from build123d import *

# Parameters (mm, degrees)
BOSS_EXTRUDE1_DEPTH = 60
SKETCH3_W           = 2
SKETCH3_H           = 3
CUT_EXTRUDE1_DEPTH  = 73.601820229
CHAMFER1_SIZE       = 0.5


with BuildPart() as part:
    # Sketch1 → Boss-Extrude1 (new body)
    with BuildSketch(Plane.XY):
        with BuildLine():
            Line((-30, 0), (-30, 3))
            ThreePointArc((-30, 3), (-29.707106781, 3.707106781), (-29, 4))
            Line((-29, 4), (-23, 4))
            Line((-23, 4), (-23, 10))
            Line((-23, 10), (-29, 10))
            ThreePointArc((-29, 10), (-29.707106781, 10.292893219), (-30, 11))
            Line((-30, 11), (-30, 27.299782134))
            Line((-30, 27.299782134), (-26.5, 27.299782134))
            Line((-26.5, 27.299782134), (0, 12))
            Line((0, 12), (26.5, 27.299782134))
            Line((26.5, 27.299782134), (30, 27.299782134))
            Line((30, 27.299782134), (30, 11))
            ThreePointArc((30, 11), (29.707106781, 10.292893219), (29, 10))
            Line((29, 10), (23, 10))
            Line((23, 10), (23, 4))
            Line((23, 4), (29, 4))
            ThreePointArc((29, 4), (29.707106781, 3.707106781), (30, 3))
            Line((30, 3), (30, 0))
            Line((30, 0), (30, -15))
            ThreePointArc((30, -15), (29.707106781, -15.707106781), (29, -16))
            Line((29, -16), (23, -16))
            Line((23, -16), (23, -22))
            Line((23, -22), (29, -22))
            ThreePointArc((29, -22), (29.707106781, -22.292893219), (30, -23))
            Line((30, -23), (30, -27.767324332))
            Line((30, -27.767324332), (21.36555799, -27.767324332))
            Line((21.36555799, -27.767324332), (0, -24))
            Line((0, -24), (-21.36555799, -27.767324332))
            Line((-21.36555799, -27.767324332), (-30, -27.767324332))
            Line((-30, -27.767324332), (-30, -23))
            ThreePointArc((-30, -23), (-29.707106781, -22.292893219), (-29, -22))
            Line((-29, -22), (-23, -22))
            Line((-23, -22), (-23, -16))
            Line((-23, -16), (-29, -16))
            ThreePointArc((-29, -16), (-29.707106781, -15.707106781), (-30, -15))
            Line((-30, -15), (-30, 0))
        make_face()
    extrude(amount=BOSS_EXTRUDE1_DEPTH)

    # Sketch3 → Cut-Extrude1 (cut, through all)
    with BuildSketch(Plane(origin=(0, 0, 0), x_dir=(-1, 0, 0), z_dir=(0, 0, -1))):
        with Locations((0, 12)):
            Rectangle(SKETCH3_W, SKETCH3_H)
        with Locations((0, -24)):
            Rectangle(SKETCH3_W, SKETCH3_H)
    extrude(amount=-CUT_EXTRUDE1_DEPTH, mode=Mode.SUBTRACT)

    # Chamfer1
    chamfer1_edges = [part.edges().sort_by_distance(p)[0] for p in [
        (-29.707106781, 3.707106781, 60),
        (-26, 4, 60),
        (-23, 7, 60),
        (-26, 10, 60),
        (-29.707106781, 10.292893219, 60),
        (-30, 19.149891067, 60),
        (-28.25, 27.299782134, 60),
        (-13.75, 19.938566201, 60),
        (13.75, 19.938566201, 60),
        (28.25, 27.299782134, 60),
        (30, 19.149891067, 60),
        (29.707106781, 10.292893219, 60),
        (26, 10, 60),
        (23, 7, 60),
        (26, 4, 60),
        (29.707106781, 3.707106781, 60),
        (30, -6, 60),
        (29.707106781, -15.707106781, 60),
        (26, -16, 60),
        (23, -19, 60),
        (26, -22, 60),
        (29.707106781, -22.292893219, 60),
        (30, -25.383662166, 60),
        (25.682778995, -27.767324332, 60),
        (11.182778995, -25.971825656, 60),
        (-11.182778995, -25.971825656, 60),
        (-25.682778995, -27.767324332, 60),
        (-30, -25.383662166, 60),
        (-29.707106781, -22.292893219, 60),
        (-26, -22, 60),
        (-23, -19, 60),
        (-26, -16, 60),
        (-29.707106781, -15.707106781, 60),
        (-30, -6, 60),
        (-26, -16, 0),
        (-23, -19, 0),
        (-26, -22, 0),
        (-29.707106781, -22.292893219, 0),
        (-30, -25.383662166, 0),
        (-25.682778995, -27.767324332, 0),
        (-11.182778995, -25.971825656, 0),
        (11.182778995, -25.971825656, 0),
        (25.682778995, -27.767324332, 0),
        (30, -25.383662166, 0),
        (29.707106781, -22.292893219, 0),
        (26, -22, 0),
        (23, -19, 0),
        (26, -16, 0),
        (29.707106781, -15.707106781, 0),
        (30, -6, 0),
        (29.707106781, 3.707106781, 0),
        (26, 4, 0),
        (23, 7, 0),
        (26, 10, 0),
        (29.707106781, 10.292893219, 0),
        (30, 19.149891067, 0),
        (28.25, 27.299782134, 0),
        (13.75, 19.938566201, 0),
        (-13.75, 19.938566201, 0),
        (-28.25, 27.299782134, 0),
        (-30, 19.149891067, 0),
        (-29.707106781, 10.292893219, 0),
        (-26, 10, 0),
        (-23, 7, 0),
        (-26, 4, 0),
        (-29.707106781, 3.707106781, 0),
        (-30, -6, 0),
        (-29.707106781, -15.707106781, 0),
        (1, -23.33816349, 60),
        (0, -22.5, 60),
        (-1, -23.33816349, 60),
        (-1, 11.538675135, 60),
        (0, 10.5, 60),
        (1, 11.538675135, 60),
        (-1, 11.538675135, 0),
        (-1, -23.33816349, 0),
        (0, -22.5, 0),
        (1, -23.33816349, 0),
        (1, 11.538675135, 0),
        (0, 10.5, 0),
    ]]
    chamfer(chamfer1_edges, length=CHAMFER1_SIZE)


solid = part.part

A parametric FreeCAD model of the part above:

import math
import FreeCAD as App
import Part
import Sketcher
from FreeCAD import Vector
Q = App.Units.Quantity


def edges_at(feature, points):
    """Names of the edges that pass closest to the given points."""
    edges = feature.Shape.Edges
    near = lambda p: min(range(len(edges)), key=lambda i: edges[i].distToShape(Part.Vertex(*p))[0])
    return sorted({f"Edge{near(p) + 1}" for p in points})


def add_polygon(sketch, points):
    """Adds a closed chain of lines whose ends are joined by coincident constraints."""
    first, n = sketch.GeometryCount, len(points)
    for a, b in zip(points, points[1:] + points[:1]):
        sketch.addGeometry(Part.LineSegment(App.Vector(*a, 0), App.Vector(*b, 0)), False)
    for i in range(n):
        sketch.addConstraint(Sketcher.Constraint("Coincident", first + i, 2, first + (i + 1) % n, 1))

doc = App.newDocument("Part")
body = doc.addObject("PartDesign::Body", "Body")

sketch1 = body.newObject("Sketcher::SketchObject", "Sketch")
sketch1.AttachmentSupport = (doc.getObject("XY_Plane"), [""])
sketch1.MapMode = "FlatFace"
sketch1.addGeometry([
    Part.ArcOfCircle(Part.Circle(Vector(-29, 3, 0), Vector(0, 0, 1), 1), math.radians(90), math.radians(180)),
    Part.LineSegment(Vector(-30, 3, 0), Vector(-30, -15, 0)),
    Part.ArcOfCircle(Part.Circle(Vector(-29, -15, 0), Vector(0, 0, 1), 1), math.radians(-180), math.radians(-90)),
    Part.LineSegment(Vector(-29, -16, 0), Vector(-23, -16, 0)),
    Part.LineSegment(Vector(-23, -16, 0), Vector(-23, -22, 0)),
    Part.LineSegment(Vector(-23, -22, 0), Vector(-29, -22, 0)),
    Part.ArcOfCircle(Part.Circle(Vector(-29, -23, 0), Vector(0, 0, 1), 1), math.radians(90), math.radians(180)),
    Part.LineSegment(Vector(-30, -23, 0), Vector(-30, -27.8, 0)),
    Part.LineSegment(Vector(-30, -27.8, 0), Vector(-21.4, -27.8, 0)),
    Part.LineSegment(Vector(-21.4, -27.8, 0), Vector(0, -24, 0)),
    Part.LineSegment(Vector(0, -24, 0), Vector(21.4, -27.8, 0)),
    Part.LineSegment(Vector(21.4, -27.8, 0), Vector(30, -27.8, 0)),
    Part.LineSegment(Vector(30, -27.8, 0), Vector(30, -23, 0)),
    Part.ArcOfCircle(Part.Circle(Vector(29, -23, 0), Vector(0, 0, 1), 1), math.radians(0), math.radians(90)),
    Part.LineSegment(Vector(29, -22, 0), Vector(23, -22, 0)),
    Part.LineSegment(Vector(23, -22, 0), Vector(23, -16, 0)),
    Part.LineSegment(Vector(23, -16, 0), Vector(29, -16, 0)),
    Part.ArcOfCircle(Part.Circle(Vector(29, -15, 0), Vector(0, 0, 1), 1), math.radians(-90), math.radians(0)),
    Part.LineSegment(Vector(30, -15, 0), Vector(30, 3, 0)),
    Part.ArcOfCircle(Part.Circle(Vector(29, 3, 0), Vector(0, 0, 1), 1), math.radians(0), math.radians(90)),
    Part.LineSegment(Vector(29, 4, 0), Vector(23, 4, 0)),
    Part.LineSegment(Vector(23, 4, 0), Vector(23, 10, 0)),
    Part.LineSegment(Vector(23, 10, 0), Vector(29, 10, 0)),
    Part.ArcOfCircle(Part.Circle(Vector(29, 11, 0), Vector(0, 0, 1), 1), math.radians(-90), math.radians(0)),
    Part.LineSegment(Vector(30, 11, 0), Vector(30, 27.3, 0)),
    Part.LineSegment(Vector(30, 27.3, 0), Vector(26.5, 27.3, 0)),
    Part.LineSegment(Vector(26.5, 27.3, 0), Vector(0, 12, 0)),
    Part.LineSegment(Vector(0, 12, 0), Vector(-26.5, 27.3, 0)),
    Part.LineSegment(Vector(-26.5, 27.3, 0), Vector(-30, 27.3, 0)),
    Part.LineSegment(Vector(-30, 27.3, 0), Vector(-30, 11, 0)),
    Part.ArcOfCircle(Part.Circle(Vector(-29, 11, 0), Vector(0, 0, 1), 1), math.radians(-180), math.radians(-90)),
    Part.LineSegment(Vector(-29, 10, 0), Vector(-23, 10, 0)),
    Part.LineSegment(Vector(-23, 10, 0), Vector(-23, 4, 0)),
    Part.LineSegment(Vector(-23, 4, 0), Vector(-29, 4, 0)),
], False)
sketch1.addConstraint([
    Sketcher.Constraint("Tangent", 0, 2, 1, 1),
    Sketcher.Constraint("Tangent", 1, 2, 2, 1),
    Sketcher.Constraint("Tangent", 2, 2, 3, 1),
    Sketcher.Constraint("Coincident", 3, 2, 4, 1),
    Sketcher.Constraint("Coincident", 4, 2, 5, 1),
    Sketcher.Constraint("Tangent", 5, 2, 6, 1),
    Sketcher.Constraint("Tangent", 6, 2, 7, 1),
    Sketcher.Constraint("Coincident", 7, 2, 8, 1),
    Sketcher.Constraint("Coincident", 8, 2, 9, 1),
    Sketcher.Constraint("Coincident", 9, 2, 10, 1),
    Sketcher.Constraint("Coincident", 10, 2, 11, 1),
    Sketcher.Constraint("Coincident", 11, 2, 12, 1),
    Sketcher.Constraint("Tangent", 12, 2, 13, 1),
    Sketcher.Constraint("Tangent", 13, 2, 14, 1),
    Sketcher.Constraint("Coincident", 14, 2, 15, 1),
    Sketcher.Constraint("Coincident", 15, 2, 16, 1),
    Sketcher.Constraint("Tangent", 16, 2, 17, 1),
    Sketcher.Constraint("Tangent", 17, 2, 18, 1),
    Sketcher.Constraint("Tangent", 18, 2, 19, 1),
    Sketcher.Constraint("Tangent", 19, 2, 20, 1),
    Sketcher.Constraint("Coincident", 20, 2, 21, 1),
    Sketcher.Constraint("Coincident", 21, 2, 22, 1),
    Sketcher.Constraint("Tangent", 22, 2, 23, 1),
    Sketcher.Constraint("Tangent", 23, 2, 24, 1),
    Sketcher.Constraint("Coincident", 24, 2, 25, 1),
    Sketcher.Constraint("Coincident", 25, 2, 26, 1),
    Sketcher.Constraint("Coincident", 26, 2, 27, 1),
    Sketcher.Constraint("Coincident", 27, 2, 28, 1),
    Sketcher.Constraint("Coincident", 28, 2, 29, 1),
    Sketcher.Constraint("Tangent", 29, 2, 30, 1),
    Sketcher.Constraint("Tangent", 30, 2, 31, 1),
    Sketcher.Constraint("Coincident", 31, 2, 32, 1),
    Sketcher.Constraint("Coincident", 32, 2, 33, 1),
    Sketcher.Constraint("Tangent", 33, 2, 0, 1),
    Sketcher.Constraint("Vertical", 1),
    Sketcher.Constraint("Horizontal", 3),
    Sketcher.Constraint("Vertical", 4),
    Sketcher.Constraint("Horizontal", 5),
    Sketcher.Constraint("Vertical", 7),
    Sketcher.Constraint("Horizontal", 8),
    Sketcher.Constraint("Horizontal", 11),
    Sketcher.Constraint("Vertical", 12),
    Sketcher.Constraint("Horizontal", 14),
    Sketcher.Constraint("Vertical", 15),
    Sketcher.Constraint("Horizontal", 16),
    Sketcher.Constraint("Vertical", 18),
    Sketcher.Constraint("Horizontal", 20),
    Sketcher.Constraint("Vertical", 21),
    Sketcher.Constraint("Horizontal", 22),
    Sketcher.Constraint("Vertical", 24),
    Sketcher.Constraint("Horizontal", 25),
    Sketcher.Constraint("Horizontal", 28),
    Sketcher.Constraint("Vertical", 29),
    Sketcher.Constraint("Horizontal", 31),
    Sketcher.Constraint("Vertical", 32),
    Sketcher.Constraint("Horizontal", 33),
    Sketcher.Constraint("Equal", 0, 2),
    Sketcher.Constraint("Equal", 2, 6),
    Sketcher.Constraint("Equal", 6, 13),
    Sketcher.Constraint("Equal", 13, 17),
    Sketcher.Constraint("Equal", 17, 19),
    Sketcher.Constraint("Equal", 19, 23),
    Sketcher.Constraint("Equal", 23, 30),
    Sketcher.Constraint("Symmetric", 6, 3, 13, 3, -2),
    Sketcher.Constraint("Symmetric", 2, 3, 17, 3, -2),
    Sketcher.Constraint("Symmetric", 23, 3, 30, 3, -2),
    Sketcher.Constraint("Symmetric", 8, 2, 10, 2, -2),
    Sketcher.Constraint("Symmetric", 25, 2, 27, 2, -2),
    Sketcher.Constraint("Symmetric", 20, 2, 32, 2, -2),
    Sketcher.Constraint("PointOnObject", 9, 2, -2),
    Sketcher.Constraint("PointOnObject", 26, 2, -2),
    Sketcher.Constraint("Vertical", 2, 3, 6, 3),
    Sketcher.Constraint("Vertical", 19, 3, 23, 3),
    Sketcher.Constraint("Vertical", 15, 2, 20, 2),
    Sketcher.Constraint("Vertical", 4, 2, 31, 2),
    Sketcher.Constraint("Equal", 33, 4),
    Sketcher.Constraint("Equal", 15, 21),
    Sketcher.Constraint("Radius", 0, 1.0),
    Sketcher.Constraint("DistanceX", 3, 1, 3, 2, 6.0),
    Sketcher.Constraint("DistanceY", 1, 2, 1, 1, 18.0),
    Sketcher.Constraint("Angle", 9, Q("10 deg")),
    Sketcher.Constraint("Angle", 26, Q("-150 deg")),
    Sketcher.Constraint("DistanceX", 25, 2, 25, 1, 3.5),
    Sketcher.Constraint("DistanceX", 0, 3, -1, 1, 29.0),
    Sketcher.Constraint("DistanceY", -1, 1, 0, 3, 3.0),
    Sketcher.Constraint("DistanceY", 9, 2, -1, 1, 24.0),
    Sketcher.Constraint("DistanceY", -1, 1, 26, 2, 12.0),
    Sketcher.Constraint("DistanceX", 8, 1, 8, 2, 8.634442),
])
pad1 = body.newObject("PartDesign::Pad", "Pad")
pad1.Profile = sketch1
pad1.Length = 60

sketch2 = body.newObject("Sketcher::SketchObject", "Sketch001")
sketch2.AttachmentSupport = (doc.getObject("XY_Plane"), [""])
sketch2.MapMode = "FlatFace"
add_polygon(sketch2, [(1, 13.5), (1, 10.5), (-1, 10.5), (-1, 13.5)])
add_polygon(sketch2, [(1, -22.5), (1, -25.5), (-1, -25.5), (-1, -22.5)])
sketch2.addConstraint([
    Sketcher.Constraint("Vertical", 0),
    Sketcher.Constraint("Horizontal", 1),
    Sketcher.Constraint("Vertical", 2),
    Sketcher.Constraint("Horizontal", 3),
    Sketcher.Constraint("Vertical", 4),
    Sketcher.Constraint("Horizontal", 5),
    Sketcher.Constraint("Vertical", 6),
    Sketcher.Constraint("Horizontal", 7),
    Sketcher.Constraint("Vertical", 3, 2, 4, 2),
    Sketcher.Constraint("Vertical", 2, 2, 5, 2),
    Sketcher.Constraint("Equal", 2, 4),
    Sketcher.Constraint("DistanceX", 1, 2, 1, 1, 2.0),
    Sketcher.Constraint("DistanceY", 0, 2, 0, 1, 3.0),
    Sketcher.Constraint("DistanceX", -1, 1, 0, 2, 1.0),
    Sketcher.Constraint("DistanceY", 4, 2, 0, 2, 36.0),
    Sketcher.Constraint("DistanceY", -1, 1, 0, 2, 10.5),
])
pocket1 = body.newObject("PartDesign::Pocket", "Pocket")
pocket1.Profile = sketch2
pocket1.Type = "ThroughAll"
pocket1.Reversed = True
doc.recompute()

chamfer = body.newObject("PartDesign::Chamfer", "Chamfer")
chamfer.Base = (pocket1, edges_at(pocket1, [
    (-29.707, 3.707, 60),
    (-26, 4, 60),
    (-23, 7, 60),
    (-26, 10, 60),
    (-29.707, 10.293, 60),
    (-30, 19.15, 60),
    (-28.25, 27.3, 60),
    (-13.75, 19.939, 60),
    (13.75, 19.939, 60),
    (28.25, 27.3, 60),
    (30, 19.15, 60),
    (29.707, 10.293, 60),
    (26, 10, 60),
    (23, 7, 60),
    (26, 4, 60),
    (29.707, 3.707, 60),
    (30, -6, 60),
    (29.707, -15.707, 60),
    (26, -16, 60),
    (23, -19, 60),
    (26, -22, 60),
    (29.707, -22.293, 60),
    (30, -25.384, 60),
    (25.683, -27.767, 60),
    (11.183, -25.972, 60),
    (-11.183, -25.972, 60),
    (-25.683, -27.767, 60),
    (-30, -25.384, 60),
    (-29.707, -22.293, 60),
    (-26, -22, 60),
    (-23, -19, 60),
    (-26, -16, 60),
    (-29.707, -15.707, 60),
    (-30, -6, 60),
    (-26, -16, 0),
    (-23, -19, 0),
    (-26, -22, 0),
    (-29.707, -22.293, 0),
    (-30, -25.384, 0),
    (-25.683, -27.767, 0),
    (-11.183, -25.972, 0),
    (11.183, -25.972, 0),
    (25.683, -27.767, 0),
    (30, -25.384, 0),
    (29.707, -22.293, 0),
    (26, -22, 0),
    (23, -19, 0),
    (26, -16, 0),
    (29.707, -15.707, 0),
    (30, -6, 0),
    (29.707, 3.707, 0),
    (26, 4, 0),
    (23, 7, 0),
    (26, 10, 0),
    (29.707, 10.293, 0),
    (30, 19.15, 0),
    (28.25, 27.3, 0),
    (13.75, 19.939, 0),
    (-13.75, 19.939, 0),
    (-28.25, 27.3, 0),
    (-30, 19.15, 0),
    (-29.707, 10.293, 0),
    (-26, 10, 0),
    (-23, 7, 0),
    (-26, 4, 0),
    (-29.707, 3.707, 0),
    (-30, -6, 0),
    (-29.707, -15.707, 0),
    (1, -23.338, 60),
    (0, -22.5, 60),
    (-1, -23.338, 60),
    (-1, 11.539, 60),
    (0, 10.5, 60),
    (1, 11.539, 60),
    (-1, 11.539, 0),
    (-1, -23.338, 0),
    (0, -22.5, 0),
    (1, -23.338, 0),
    (1, 11.539, 0),
    (0, 10.5, 0),
]))
chamfer.Size = 0.5

doc.recompute()
